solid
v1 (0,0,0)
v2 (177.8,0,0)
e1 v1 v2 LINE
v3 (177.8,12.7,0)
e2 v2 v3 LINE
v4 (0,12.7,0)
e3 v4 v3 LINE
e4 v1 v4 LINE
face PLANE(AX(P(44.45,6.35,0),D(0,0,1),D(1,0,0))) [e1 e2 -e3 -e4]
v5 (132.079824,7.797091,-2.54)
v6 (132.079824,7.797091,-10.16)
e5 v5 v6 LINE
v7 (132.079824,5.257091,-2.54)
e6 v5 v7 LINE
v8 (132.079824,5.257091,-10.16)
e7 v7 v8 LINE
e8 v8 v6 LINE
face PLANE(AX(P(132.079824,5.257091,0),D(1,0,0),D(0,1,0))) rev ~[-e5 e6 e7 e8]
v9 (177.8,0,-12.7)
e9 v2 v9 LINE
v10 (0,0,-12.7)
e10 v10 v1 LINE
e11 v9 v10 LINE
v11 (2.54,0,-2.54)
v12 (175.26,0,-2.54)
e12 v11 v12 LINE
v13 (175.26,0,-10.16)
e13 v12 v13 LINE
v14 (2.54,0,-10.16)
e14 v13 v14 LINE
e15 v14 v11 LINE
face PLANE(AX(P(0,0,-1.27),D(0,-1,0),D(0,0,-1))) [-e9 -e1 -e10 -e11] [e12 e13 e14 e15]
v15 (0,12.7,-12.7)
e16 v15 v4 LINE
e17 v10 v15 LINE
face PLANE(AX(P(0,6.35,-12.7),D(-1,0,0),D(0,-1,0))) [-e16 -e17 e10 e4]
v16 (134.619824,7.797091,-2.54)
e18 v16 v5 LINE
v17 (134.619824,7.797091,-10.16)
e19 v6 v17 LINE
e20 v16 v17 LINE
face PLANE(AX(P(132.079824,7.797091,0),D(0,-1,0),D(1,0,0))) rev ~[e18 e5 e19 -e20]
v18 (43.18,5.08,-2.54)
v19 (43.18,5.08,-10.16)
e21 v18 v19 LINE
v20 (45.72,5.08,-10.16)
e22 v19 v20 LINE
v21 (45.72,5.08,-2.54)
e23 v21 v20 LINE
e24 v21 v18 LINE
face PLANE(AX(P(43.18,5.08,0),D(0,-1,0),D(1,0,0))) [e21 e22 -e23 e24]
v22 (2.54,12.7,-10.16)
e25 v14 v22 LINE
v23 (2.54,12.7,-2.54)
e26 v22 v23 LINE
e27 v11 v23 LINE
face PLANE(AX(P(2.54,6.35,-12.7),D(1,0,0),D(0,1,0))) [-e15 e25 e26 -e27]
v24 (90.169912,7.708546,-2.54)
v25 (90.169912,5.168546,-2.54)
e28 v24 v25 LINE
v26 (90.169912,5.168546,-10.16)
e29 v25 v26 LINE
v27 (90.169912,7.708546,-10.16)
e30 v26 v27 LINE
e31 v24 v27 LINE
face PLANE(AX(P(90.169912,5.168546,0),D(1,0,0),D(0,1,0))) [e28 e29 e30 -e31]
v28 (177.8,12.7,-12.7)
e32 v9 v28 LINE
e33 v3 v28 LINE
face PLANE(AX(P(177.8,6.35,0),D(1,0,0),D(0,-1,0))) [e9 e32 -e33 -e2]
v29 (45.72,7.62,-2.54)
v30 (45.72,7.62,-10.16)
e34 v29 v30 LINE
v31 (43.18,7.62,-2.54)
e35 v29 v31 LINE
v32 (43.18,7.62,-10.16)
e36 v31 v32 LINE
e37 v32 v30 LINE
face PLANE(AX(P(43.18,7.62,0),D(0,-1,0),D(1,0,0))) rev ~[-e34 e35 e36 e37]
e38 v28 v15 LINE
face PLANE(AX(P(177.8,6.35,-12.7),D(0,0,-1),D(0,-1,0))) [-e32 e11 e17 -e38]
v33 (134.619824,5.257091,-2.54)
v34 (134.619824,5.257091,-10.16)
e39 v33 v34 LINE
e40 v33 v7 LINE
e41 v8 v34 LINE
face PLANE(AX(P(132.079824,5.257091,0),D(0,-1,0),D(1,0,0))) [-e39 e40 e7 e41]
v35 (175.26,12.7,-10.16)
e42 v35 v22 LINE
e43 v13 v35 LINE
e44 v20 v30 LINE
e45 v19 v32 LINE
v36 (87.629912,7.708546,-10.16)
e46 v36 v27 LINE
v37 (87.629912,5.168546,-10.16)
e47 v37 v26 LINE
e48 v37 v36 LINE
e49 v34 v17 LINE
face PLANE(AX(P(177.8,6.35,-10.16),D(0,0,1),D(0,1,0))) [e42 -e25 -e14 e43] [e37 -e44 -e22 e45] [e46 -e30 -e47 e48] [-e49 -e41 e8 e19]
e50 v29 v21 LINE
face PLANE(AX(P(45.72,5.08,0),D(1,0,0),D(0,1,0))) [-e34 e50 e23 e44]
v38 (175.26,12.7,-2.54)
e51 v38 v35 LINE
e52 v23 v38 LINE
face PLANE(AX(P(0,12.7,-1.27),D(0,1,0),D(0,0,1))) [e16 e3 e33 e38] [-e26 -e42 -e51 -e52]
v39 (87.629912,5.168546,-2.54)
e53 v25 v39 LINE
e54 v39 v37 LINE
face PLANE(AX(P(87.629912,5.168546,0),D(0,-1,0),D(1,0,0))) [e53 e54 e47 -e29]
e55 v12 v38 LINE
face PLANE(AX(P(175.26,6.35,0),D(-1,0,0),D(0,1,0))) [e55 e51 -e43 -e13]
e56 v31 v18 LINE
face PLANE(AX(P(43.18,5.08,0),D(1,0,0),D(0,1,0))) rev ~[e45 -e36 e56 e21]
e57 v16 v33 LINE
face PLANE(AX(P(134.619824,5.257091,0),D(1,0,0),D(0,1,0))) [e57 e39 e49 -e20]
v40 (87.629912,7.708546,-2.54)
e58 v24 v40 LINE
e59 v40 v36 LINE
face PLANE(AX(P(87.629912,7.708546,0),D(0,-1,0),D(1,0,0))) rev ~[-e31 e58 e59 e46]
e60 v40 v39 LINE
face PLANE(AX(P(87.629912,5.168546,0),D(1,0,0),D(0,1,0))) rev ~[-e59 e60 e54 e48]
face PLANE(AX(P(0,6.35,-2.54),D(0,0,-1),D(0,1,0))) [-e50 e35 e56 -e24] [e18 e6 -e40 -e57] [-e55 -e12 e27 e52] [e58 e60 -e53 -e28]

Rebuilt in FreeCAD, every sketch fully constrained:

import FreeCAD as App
import Part
import Sketcher
from FreeCAD import Vector
Q = App.Units.Quantity


def add_polygon(sketch, points):
    """Adds a closed chain of lines whose ends are joined by coincident constraints."""
    first, n = sketch.GeometryCount, len(points)
    for a, b in zip(points, points[1:] + points[:1]):
        sketch.addGeometry(Part.LineSegment(App.Vector(*a, 0), App.Vector(*b, 0)), False)
    for i in range(n):
        sketch.addConstraint(Sketcher.Constraint("Coincident", first + i, 2, first + (i + 1) % n, 1))

doc = App.newDocument("Part")
params = doc.addObject("Spreadsheet::Sheet", "Params")
for row, (alias, value) in enumerate([
    ("sketch1_width", "0.5 in"),
    ("sketch1_height", "0.1 in"),
    ("sketch2_width", "7 in"),
    ("sketch2_height", "0.5 in"),
    ("sketch3_width", "0.1 in"),
    ("pad1_length", "0.5 in"),
], start=1):
    params.set(f"A{row}", alias)
    params.set(f"B{row}", "=" + value)
    params.setAlias(f"B{row}", alias)

body = doc.addObject("PartDesign::Body", "Body")

sketch1 = doc.addObject("Sketcher::SketchObject", "Sketch")
body.addObject(sketch1)
sketch1.AttachmentSupport = (doc.YZ_Plane, [""])
sketch1.MapMode = "FlatFace"
add_polygon(sketch1, [(0, 0), (0, -2.54), (12.7, -2.54), (12.7, 0)])
sketch1.addConstraint([
    Sketcher.Constraint("Vertical", 0),
    Sketcher.Constraint("Horizontal", 1),
    Sketcher.Constraint("Vertical", 2),
    Sketcher.Constraint("Horizontal", 3),
    Sketcher.Constraint("Coincident", 3, 2, -1, 1),
    Sketcher.Constraint("DistanceX", 1, 1, 1, 2, Q("0.5 in")),
    Sketcher.Constraint("DistanceY", 0, 2, 0, 1, Q("0.1 in")),
])
sketch1.setExpression("Constraints[9]", "Params.sketch1_width")
sketch1.setExpression("Constraints[10]", "Params.sketch1_height")

sketch2 = doc.addObject("Sketcher::SketchObject", "Sketch001")
body.addObject(sketch2)
sketch2.AttachmentSupport = (doc.XZ_Plane, [""])
sketch2.MapMode = "FlatFace"
add_polygon(sketch2, [(0, 0), (177.8, 0), (177.8, -12.7), (0, -12.7)])
sketch2.addConstraint([
    Sketcher.Constraint("Horizontal", 0),
    Sketcher.Constraint("Vertical", 1),
    Sketcher.Constraint("Horizontal", 2),
    Sketcher.Constraint("Vertical", 3),
    Sketcher.Constraint("Coincident", 3, 2, -1, 1),
    Sketcher.Constraint("DistanceX", 0, 1, 0, 2, Q("7 in")),
    Sketcher.Constraint("DistanceY", 1, 2, 1, 1, Q("0.5 in")),
])
sketch2.setExpression("Constraints[9]", "Params.sketch2_width")
sketch2.setExpression("Constraints[10]", "Params.sketch2_height")
doc.recompute()

additivepipe = doc.addObject("PartDesign::AdditivePipe", "AdditivePipe")
body.addObject(additivepipe)
additivepipe.Profile = sketch1
additivepipe.Spine = (sketch2, ["Edge1", "Edge2", "Edge3", "Edge4"])
additivepipe.Transition = "Right corner"

sketch3 = doc.addObject("Sketcher::SketchObject", "Sketch002")
body.addObject(sketch3)
sketch3.AttachmentSupport = (doc.XY_Plane, [""])
sketch3.MapMode = "FlatFace"
add_polygon(sketch3, [(43.18, 7.62), (43.18, 5.08), (45.72, 5.08), (45.72, 7.62)])
add_polygon(sketch3, [(87.629912, 7.708546), (87.629912, 5.168546), (90.169912, 5.168546), (90.169912, 7.708546)])
add_polygon(sketch3, [(132.079824, 7.797091), (132.079824, 5.257091), (134.619824, 5.257091), (134.619824, 7.797091)])
sketch3.addConstraint([
    Sketcher.Constraint("Vertical", 0),
    Sketcher.Constraint("Horizontal", 1),
    Sketcher.Constraint("Vertical", 2),
    Sketcher.Constraint("Horizontal", 3),
    Sketcher.Constraint("Vertical", 4),
    Sketcher.Constraint("Horizontal", 5),
    Sketcher.Constraint("Vertical", 6),
    Sketcher.Constraint("Horizontal", 7),
    Sketcher.Constraint("Vertical", 8),
    Sketcher.Constraint("Horizontal", 9),
    Sketcher.Constraint("Vertical", 10),
    Sketcher.Constraint("Horizontal", 11),
    Sketcher.Constraint("Equal", 3, 5),
    Sketcher.Constraint("Equal", 7, 9),
    Sketcher.Constraint("Equal", 11, 0),
    Sketcher.Constraint("Equal", 2, 4),
    Sketcher.Constraint("Equal", 6, 8),
    Sketcher.Constraint("DistanceX", 1, 1, 1, 2, Q("0.1 in")),
    Sketcher.Constraint("DistanceX", -1, 1, 0, 2, Q("1.7 in")),
    Sketcher.Constraint("DistanceY", -1, 1, 0, 2, Q("0.2 in")),
    Sketcher.Constraint("DistanceX", -1, 1, 4, 2, Q("87.629912 mm")),
    Sketcher.Constraint("DistanceY", -1, 1, 8, 2, Q("5.257091 mm")),
    Sketcher.Constraint("DistanceX", 5, 2, 8, 2, Q("41.909912 mm")),
    Sketcher.Constraint("DistanceY", -1, 1, 4, 2, Q("5.168546 mm")),
])
sketch3.setExpression("Constraints[29]", "Params.sketch3_width")
pad1 = doc.addObject("PartDesign::Pad", "Pad")
body.addObject(pad1)
pad1.Profile = sketch3
pad1.setExpression("Length", "Params.pad1_length")
pad1.Reversed = True

doc.recompute()
